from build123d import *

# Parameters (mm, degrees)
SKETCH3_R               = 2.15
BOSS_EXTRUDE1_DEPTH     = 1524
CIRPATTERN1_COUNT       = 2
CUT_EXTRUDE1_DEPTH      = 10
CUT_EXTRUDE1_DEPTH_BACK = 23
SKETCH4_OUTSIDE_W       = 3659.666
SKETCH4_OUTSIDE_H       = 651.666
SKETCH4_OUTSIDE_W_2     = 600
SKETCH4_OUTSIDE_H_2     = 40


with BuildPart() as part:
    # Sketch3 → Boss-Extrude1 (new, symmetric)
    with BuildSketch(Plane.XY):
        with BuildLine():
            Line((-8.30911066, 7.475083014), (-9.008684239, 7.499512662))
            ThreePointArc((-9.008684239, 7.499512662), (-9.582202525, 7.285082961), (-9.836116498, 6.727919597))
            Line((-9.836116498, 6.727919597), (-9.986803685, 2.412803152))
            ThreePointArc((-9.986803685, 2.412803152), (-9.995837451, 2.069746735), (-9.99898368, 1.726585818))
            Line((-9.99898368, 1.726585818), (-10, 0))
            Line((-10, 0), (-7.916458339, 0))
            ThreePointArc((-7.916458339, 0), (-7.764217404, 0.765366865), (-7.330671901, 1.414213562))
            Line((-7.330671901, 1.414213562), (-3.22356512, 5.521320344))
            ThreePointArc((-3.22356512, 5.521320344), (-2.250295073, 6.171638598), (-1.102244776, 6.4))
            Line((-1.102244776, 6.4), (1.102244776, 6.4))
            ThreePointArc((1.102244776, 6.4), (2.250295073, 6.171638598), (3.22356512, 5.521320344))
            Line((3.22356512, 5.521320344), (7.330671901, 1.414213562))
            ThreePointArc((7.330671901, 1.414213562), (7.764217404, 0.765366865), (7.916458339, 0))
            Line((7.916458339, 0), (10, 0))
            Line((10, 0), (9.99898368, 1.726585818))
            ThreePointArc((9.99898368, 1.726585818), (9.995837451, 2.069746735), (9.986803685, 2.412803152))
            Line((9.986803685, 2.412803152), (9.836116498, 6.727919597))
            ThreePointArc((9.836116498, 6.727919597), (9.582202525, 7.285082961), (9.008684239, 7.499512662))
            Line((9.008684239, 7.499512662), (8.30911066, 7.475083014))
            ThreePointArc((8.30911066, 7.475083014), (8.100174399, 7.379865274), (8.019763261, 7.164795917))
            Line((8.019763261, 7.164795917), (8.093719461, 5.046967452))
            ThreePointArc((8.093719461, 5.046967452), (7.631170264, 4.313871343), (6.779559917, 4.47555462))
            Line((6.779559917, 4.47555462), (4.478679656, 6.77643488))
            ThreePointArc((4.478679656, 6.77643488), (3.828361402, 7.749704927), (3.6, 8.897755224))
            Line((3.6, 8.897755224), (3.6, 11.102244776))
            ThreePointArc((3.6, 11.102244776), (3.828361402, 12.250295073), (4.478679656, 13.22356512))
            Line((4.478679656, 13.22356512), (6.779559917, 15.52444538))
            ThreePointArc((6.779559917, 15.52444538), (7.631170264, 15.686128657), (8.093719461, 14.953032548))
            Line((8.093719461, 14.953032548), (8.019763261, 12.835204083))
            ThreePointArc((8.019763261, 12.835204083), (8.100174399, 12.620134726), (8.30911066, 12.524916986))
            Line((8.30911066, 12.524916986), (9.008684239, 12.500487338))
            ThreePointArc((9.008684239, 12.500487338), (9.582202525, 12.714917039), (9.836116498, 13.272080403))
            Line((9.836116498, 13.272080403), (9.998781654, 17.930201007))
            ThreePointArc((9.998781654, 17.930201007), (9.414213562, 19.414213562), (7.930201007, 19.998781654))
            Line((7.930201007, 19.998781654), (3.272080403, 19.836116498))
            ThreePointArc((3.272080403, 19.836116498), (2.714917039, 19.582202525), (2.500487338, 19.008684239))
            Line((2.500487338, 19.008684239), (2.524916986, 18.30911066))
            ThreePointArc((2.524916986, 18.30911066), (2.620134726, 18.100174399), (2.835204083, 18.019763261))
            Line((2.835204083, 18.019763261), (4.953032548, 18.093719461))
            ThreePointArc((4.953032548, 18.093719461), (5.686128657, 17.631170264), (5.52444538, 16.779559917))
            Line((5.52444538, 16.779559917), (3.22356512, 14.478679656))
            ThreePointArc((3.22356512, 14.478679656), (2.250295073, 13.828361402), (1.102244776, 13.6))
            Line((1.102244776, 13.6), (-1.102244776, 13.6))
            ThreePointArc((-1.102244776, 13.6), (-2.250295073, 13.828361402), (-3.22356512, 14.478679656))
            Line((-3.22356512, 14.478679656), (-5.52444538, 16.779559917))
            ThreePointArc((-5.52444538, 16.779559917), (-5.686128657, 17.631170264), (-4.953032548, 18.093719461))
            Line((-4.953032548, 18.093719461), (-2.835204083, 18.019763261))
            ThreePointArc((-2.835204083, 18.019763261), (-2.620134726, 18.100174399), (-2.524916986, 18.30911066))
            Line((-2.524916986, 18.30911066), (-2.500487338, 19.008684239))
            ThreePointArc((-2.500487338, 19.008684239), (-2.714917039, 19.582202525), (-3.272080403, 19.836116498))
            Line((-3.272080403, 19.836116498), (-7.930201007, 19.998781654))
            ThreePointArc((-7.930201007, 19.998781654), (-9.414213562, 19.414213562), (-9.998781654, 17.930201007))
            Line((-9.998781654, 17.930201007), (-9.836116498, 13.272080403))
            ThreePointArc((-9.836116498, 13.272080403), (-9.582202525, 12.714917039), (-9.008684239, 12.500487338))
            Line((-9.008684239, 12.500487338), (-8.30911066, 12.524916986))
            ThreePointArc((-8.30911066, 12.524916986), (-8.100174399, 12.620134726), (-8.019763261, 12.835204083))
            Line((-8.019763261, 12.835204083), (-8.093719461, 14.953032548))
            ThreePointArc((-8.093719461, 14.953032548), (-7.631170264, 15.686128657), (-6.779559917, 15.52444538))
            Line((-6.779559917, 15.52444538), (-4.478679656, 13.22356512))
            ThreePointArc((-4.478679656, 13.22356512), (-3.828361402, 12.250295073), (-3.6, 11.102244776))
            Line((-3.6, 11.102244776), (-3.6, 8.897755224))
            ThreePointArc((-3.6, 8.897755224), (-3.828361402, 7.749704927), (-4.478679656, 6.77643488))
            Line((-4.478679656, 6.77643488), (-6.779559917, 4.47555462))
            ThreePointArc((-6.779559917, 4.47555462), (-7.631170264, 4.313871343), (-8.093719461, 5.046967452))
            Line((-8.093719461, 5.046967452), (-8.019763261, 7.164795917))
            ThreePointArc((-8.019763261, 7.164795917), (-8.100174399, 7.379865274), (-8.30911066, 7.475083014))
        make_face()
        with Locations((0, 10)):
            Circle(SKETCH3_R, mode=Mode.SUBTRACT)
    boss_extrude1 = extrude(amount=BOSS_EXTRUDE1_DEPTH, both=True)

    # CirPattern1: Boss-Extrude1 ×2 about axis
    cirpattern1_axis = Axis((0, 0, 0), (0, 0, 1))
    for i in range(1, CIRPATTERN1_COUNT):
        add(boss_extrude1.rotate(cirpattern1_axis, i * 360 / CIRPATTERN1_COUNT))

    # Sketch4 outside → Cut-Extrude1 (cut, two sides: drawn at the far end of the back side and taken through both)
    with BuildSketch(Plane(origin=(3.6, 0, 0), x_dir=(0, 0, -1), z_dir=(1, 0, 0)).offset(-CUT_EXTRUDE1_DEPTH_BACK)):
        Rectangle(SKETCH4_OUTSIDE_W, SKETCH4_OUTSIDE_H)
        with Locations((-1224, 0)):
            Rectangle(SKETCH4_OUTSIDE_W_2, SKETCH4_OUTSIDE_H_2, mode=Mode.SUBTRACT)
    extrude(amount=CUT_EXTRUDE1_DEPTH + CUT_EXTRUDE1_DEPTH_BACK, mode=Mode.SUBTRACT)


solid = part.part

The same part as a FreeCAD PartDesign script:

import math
import FreeCAD as App
import Part
import Sketcher
from FreeCAD import Vector
Q = App.Units.Quantity


def add_polygon(sketch, points):
    """Adds a closed chain of lines whose ends are joined by coincident constraints."""
    first, n = sketch.GeometryCount, len(points)
    for a, b in zip(points, points[1:] + points[:1]):
        sketch.addGeometry(Part.LineSegment(App.Vector(*a, 0), App.Vector(*b, 0)), False)
    for i in range(n):
        sketch.addConstraint(Sketcher.Constraint("Coincident", first + i, 2, first + (i + 1) % n, 1))

doc = App.newDocument("Part")
body = doc.addObject("PartDesign::Body", "Body")

# Sketch on XY plane
sketch1 = doc.addObject("Sketcher::SketchObject", "Sketch")
body.addObject(sketch1)
sketch1.AttachmentSupport = (doc.XY_Plane, [""])
sketch1.MapMode = "FlatFace"
sketch1.addGeometry(Part.LineSegment(Vector(-8.31, 7.48, 0), Vector(-9.01, 7.5, 0)), False)
sketch1.addGeometry(Part.ArcOfCircle(Part.Circle(Vector(-9.04, 6.7, 0), Vector(0, 0, 1), 0.8), math.radians(88), math.radians(178)), False)
sketch1.addGeometry(Part.LineSegment(Vector(-9.84, 6.73, 0), Vector(-9.99, 2.41, 0)), False)
sketch1.addGeometry(Part.ArcOfCircle(Part.Circle(Vector(10, 1.71, 0), Vector(0, 0, 1), 20), math.radians(178), math.radians(179.97)), False)
sketch1.addGeometry(Part.LineSegment(Vector(-10, 1.73, 0), Vector(-10, 0, 0)), False)
sketch1.addGeometry(Part.LineSegment(Vector(-10, 0, 0), Vector(-7.92, 0, 0)), False)
sketch1.addGeometry(Part.ArcOfCircle(Part.Circle(Vector(-5.92, 0, 0), Vector(0, 0, 1), 2), math.radians(135), math.radians(180)), False)
sketch1.addGeometry(Part.LineSegment(Vector(-7.33, 1.41, 0), Vector(-3.22, 5.52, 0)), False)
sketch1.addGeometry(Part.ArcOfCircle(Part.Circle(Vector(-1.1, 3.4, 0), Vector(0, 0, 1), 3), math.radians(90), math.radians(135)), False)
sketch1.addGeometry(Part.LineSegment(Vector(-1.1, 6.4, 0), Vector(1.1, 6.4, 0)), False)
sketch1.addGeometry(Part.ArcOfCircle(Part.Circle(Vector(1.1, 3.4, 0), Vector(0, 0, 1), 3), math.radians(45), math.radians(90)), False)
sketch1.addGeometry(Part.LineSegment(Vector(3.22, 5.52, 0), Vector(7.33, 1.41, 0)), False)
sketch1.addGeometry(Part.ArcOfCircle(Part.Circle(Vector(5.92, 0, 0), Vector(0, 0, 1), 2), math.radians(0), math.radians(45)), False)
sketch1.addGeometry(Part.LineSegment(Vector(7.92, 0, 0), Vector(10, 0, 0)), False)
sketch1.addGeometry(Part.LineSegment(Vector(10, 0, 0), Vector(10, 1.73, 0)), False)
sketch1.addGeometry(Part.ArcOfCircle(Part.Circle(Vector(-10, 1.71, 0), Vector(0, 0, 1), 20), math.radians(0.03), math.radians(2)), False)
sketch1.addGeometry(Part.LineSegment(Vector(9.99, 2.41, 0), Vector(9.84, 6.73, 0)), False)
sketch1.addGeometry(Part.ArcOfCircle(Part.Circle(Vector(9.04, 6.7, 0), Vector(0, 0, 1), 0.8), math.radians(2), math.radians(92)), False)
sketch1.addGeometry(Part.LineSegment(Vector(9.01, 7.5, 0), Vector(8.31, 7.48, 0)), False)
sketch1.addGeometry(Part.ArcOfCircle(Part.Circle(Vector(8.32, 7.18, 0), Vector(0, 0, 1), 0.3), math.radians(92), math.radians(182)), False)
sketch1.addGeometry(Part.LineSegment(Vector(8.02, 7.16, 0), Vector(8.09, 5.05, 0)), False)
sketch1.addGeometry(Part.ArcOfCircle(Part.Circle(Vector(7.32, 5.02, 0), Vector(0, 0, 1), 0.77), math.radians(-135), math.radians(2)), False)
sketch1.addGeometry(Part.LineSegment(Vector(6.78, 4.48, 0), Vector(4.48, 6.78, 0)), False)
sketch1.addGeometry(Part.ArcOfCircle(Part.Circle(Vector(6.6, 8.9, 0), Vector(0, 0, 1), 3), math.radians(180), math.radians(225)), False)
sketch1.addGeometry(Part.LineSegment(Vector(3.6, 8.9, 0), Vector(3.6, 11.1, 0)), False)
sketch1.addGeometry(Part.ArcOfCircle(Part.Circle(Vector(6.6, 11.1, 0), Vector(0, 0, 1), 3), math.radians(135), math.radians(180)), False)
sketch1.addGeometry(Part.LineSegment(Vector(4.48, 13.22, 0), Vector(6.78, 15.52, 0)), False)
sketch1.addGeometry(Part.ArcOfCircle(Part.Circle(Vector(7.32, 14.98, 0), Vector(0, 0, 1), 0.77), math.radians(-2), math.radians(135)), False)
sketch1.addGeometry(Part.LineSegment(Vector(8.09, 14.95, 0), Vector(8.02, 12.84, 0)), False)
sketch1.addGeometry(Part.ArcOfCircle(Part.Circle(Vector(8.32, 12.82, 0), Vector(0, 0, 1), 0.3), math.radians(178), math.radians(268)), False)
sketch1.addGeometry(Part.LineSegment(Vector(8.31, 12.52, 0), Vector(9.01, 12.5, 0)), False)
sketch1.addGeometry(Part.ArcOfCircle(Part.Circle(Vector(9.04, 13.3, 0), Vector(0, 0, 1), 0.8), math.radians(-92), math.radians(-2)), False)
sketch1.addGeometry(Part.LineSegment(Vector(9.84, 13.27, 0), Vector(10, 17.93, 0)), False)
sketch1.addGeometry(Part.ArcOfCircle(Part.Circle(Vector(8, 18, 0), Vector(0, 0, 1), 2), math.radians(-2), math.radians(92)), False)
sketch1.addGeometry(Part.LineSegment(Vector(7.93, 20, 0), Vector(3.27, 19.84, 0)), False)
sketch1.addGeometry(Part.ArcOfCircle(Part.Circle(Vector(3.3, 19.04, 0), Vector(0, 0, 1), 0.8), math.radians(92), math.radians(182)), False)
sketch1.addGeometry(Part.LineSegment(Vector(2.5, 19.01, 0), Vector(2.52, 18.31, 0)), False)
sketch1.addGeometry(Part.ArcOfCircle(Part.Circle(Vector(2.82, 18.32, 0), Vector(0, 0, 1), 0.3), math.radians(-178), math.radians(-88)), False)
sketch1.addGeometry(Part.LineSegment(Vector(2.84, 18.02, 0), Vector(4.95, 18.09, 0)), False)
sketch1.addGeometry(Part.ArcOfCircle(Part.Circle(Vector(4.98, 17.32, 0), Vector(0, 0, 1), 0.77), math.radians(-45), math.radians(92)), False)
sketch1.addGeometry(Part.LineSegment(Vector(5.52, 16.78, 0), Vector(3.22, 14.48, 0)), False)
sketch1.addGeometry(Part.ArcOfCircle(Part.Circle(Vector(1.1, 16.6, 0), Vector(0, 0, 1), 3), math.radians(-90), math.radians(-45)), False)
sketch1.addGeometry(Part.LineSegment(Vector(1.1, 13.6, 0), Vector(-1.1, 13.6, 0)), False)
sketch1.addGeometry(Part.ArcOfCircle(Part.Circle(Vector(-1.1, 16.6, 0), Vector(0, 0, 1), 3), math.radians(-135), math.radians(-90)), False)
sketch1.addGeometry(Part.LineSegment(Vector(-3.22, 14.48, 0), Vector(-5.52, 16.78, 0)), False)
sketch1.addGeometry(Part.ArcOfCircle(Part.Circle(Vector(-4.98, 17.32, 0), Vector(0, 0, 1), 0.77), math.radians(88), math.radians(225)), False)
sketch1.addGeometry(Part.LineSegment(Vector(-4.95, 18.09, 0), Vector(-2.84, 18.02, 0)), False)
sketch1.addGeometry(Part.ArcOfCircle(Part.Circle(Vector(-2.82, 18.32, 0), Vector(0, 0, 1), 0.3), math.radians(-92), math.radians(-2)), False)
sketch1.addGeometry(Part.LineSegment(Vector(-2.52, 18.31, 0), Vector(-2.5, 19.01, 0)), False)
sketch1.addGeometry(Part.ArcOfCircle(Part.Circle(Vector(-3.3, 19.04, 0), Vector(0, 0, 1), 0.8), math.radians(-2), math.radians(88)), False)
sketch1.addGeometry(Part.LineSegment(Vector(-3.27, 19.84, 0), Vector(-7.93, 20, 0)), False)
sketch1.addGeometry(Part.ArcOfCircle(Part.Circle(Vector(-8, 18, 0), Vector(0, 0, 1), 2), math.radians(88), math.radians(182)), False)
sketch1.addGeometry(Part.LineSegment(Vector(-10, 17.93, 0), Vector(-9.84, 13.27, 0)), False)
sketch1.addGeometry(Part.ArcOfCircle(Part.Circle(Vector(-9.04, 13.3, 0), Vector(0, 0, 1), 0.8), math.radians(-178), math.radians(-88)), False)
sketch1.addGeometry(Part.LineSegment(Vector(-9.01, 12.5, 0), Vector(-8.31, 12.52, 0)), False)
sketch1.addGeometry(Part.ArcOfCircle(Part.Circle(Vector(-8.32, 12.82, 0), Vector(0, 0, 1), 0.3), math.radians(-88), math.radians(2)), False)
sketch1.addGeometry(Part.LineSegment(Vector(-8.02, 12.84, 0), Vector(-8.09, 14.95, 0)), False)
sketch1.addGeometry(Part.ArcOfCircle(Part.Circle(Vector(-7.32, 14.98, 0), Vector(0, 0, 1), 0.77), math.radians(45), math.radians(182)), False)
sketch1.addGeometry(Part.LineSegment(Vector(-6.78, 15.52, 0), Vector(-4.48, 13.22, 0)), False)
sketch1.addGeometry(Part.ArcOfCircle(Part.Circle(Vector(-6.6, 11.1, 0), Vector(0, 0, 1), 3), math.radians(0), math.radians(45)), False)
sketch1.addGeometry(Part.LineSegment(Vector(-3.6, 11.1, 0), Vector(-3.6, 8.9, 0)), False)
sketch1.addGeometry(Part.ArcOfCircle(Part.Circle(Vector(-6.6, 8.9, 0), Vector(0, 0, 1), 3), math.radians(-45), math.radians(0)), False)
sketch1.addGeometry(Part.LineSegment(Vector(-4.48, 6.78, 0), Vector(-6.78, 4.48, 0)), False)
sketch1.addGeometry(Part.ArcOfCircle(Part.Circle(Vector(-7.32, 5.02, 0), Vector(0, 0, 1), 0.77), math.radians(178), math.radians(315)), False)
sketch1.addGeometry(Part.LineSegment(Vector(-8.09, 5.05, 0), Vector(-8.02, 7.16, 0)), False)
sketch1.addGeometry(Part.ArcOfCircle(Part.Circle(Vector(-8.32, 7.18, 0), Vector(0, 0, 1), 0.3), math.radians(-2), math.radians(88)), False)
sketch1.addGeometry(Part.Circle(Vector(0, 10, 0), Vector(0, 0, 1), 2.15), False)
sketch1.addConstraint(Sketcher.Constraint("Tangent", 0, 2, 1, 1))
sketch1.addConstraint(Sketcher.Constraint("Tangent", 1, 2, 2, 1))
sketch1.addConstraint(Sketcher.Constraint("Tangent", 2, 2, 3, 1))
sketch1.addConstraint(Sketcher.Constraint("Tangent", 3, 2, 4, 1))
sketch1.addConstraint(Sketcher.Constraint("Coincident", 4, 2, 5, 1))
sketch1.addConstraint(Sketcher.Constraint("Coincident", 5, 2, 6, 2))
sketch1.addConstraint(Sketcher.Constraint("Tangent", 6, 1, 7, 1))
sketch1.addConstraint(Sketcher.Constraint("Tangent", 7, 2, 8, 2))
sketch1.addConstraint(Sketcher.Constraint("Tangent", 8, 1, 9, 1))
sketch1.addConstraint(Sketcher.Constraint("Tangent", 9, 2, 10, 2))
sketch1.addConstraint(Sketcher.Constraint("Tangent", 10, 1, 11, 1))
sketch1.addConstraint(Sketcher.Constraint("Tangent", 11, 2, 12, 2))
sketch1.addConstraint(Sketcher.Constraint("Coincident", 12, 1, 13, 1))
sketch1.addConstraint(Sketcher.Constraint("Coincident", 13, 2, 14, 1))
sketch1.addConstraint(Sketcher.Constraint("Tangent", 14, 2, 15, 1))
sketch1.addConstraint(Sketcher.Constraint("Tangent", 15, 2, 16, 1))
sketch1.addConstraint(Sketcher.Constraint("Tangent", 16, 2, 17, 1))
sketch1.addConstraint(Sketcher.Constraint("Tangent", 17, 2, 18, 1))
sketch1.addConstraint(Sketcher.Constraint("Tangent", 18, 2, 19, 1))
sketch1.addConstraint(Sketcher.Constraint("Tangent", 19, 2, 20, 1))
sketch1.addConstraint(Sketcher.Constraint("Tangent", 20, 2, 21, 2))
sketch1.addConstraint(Sketcher.Constraint("Tangent", 21, 1, 22, 1))
sketch1.addConstraint(Sketcher.Constraint("Tangent", 22, 2, 23, 2))
sketch1.addConstraint(Sketcher.Constraint("Tangent", 23, 1, 24, 1))
sketch1.addConstraint(Sketcher.Constraint("Tangent", 24, 2, 25, 2))
sketch1.addConstraint(Sketcher.Constraint("Tangent", 25, 1, 26, 1))
sketch1.addConstraint(Sketcher.Constraint("Tangent", 26, 2, 27, 2))
sketch1.addConstraint(Sketcher.Constraint("Tangent", 27, 1, 28, 1))
sketch1.addConstraint(Sketcher.Constraint("Tangent", 28, 2, 29, 1))
sketch1.addConstraint(Sketcher.Constraint("Tangent", 29, 2, 30, 1))
sketch1.addConstraint(Sketcher.Constraint("Tangent", 30, 2, 31, 1))
sketch1.addConstraint(Sketcher.Constraint("Tangent", 31, 2, 32, 1))
sketch1.addConstraint(Sketcher.Constraint("Tangent", 32, 2, 33, 1))
sketch1.addConstraint(Sketcher.Constraint("Tangent", 33, 2, 34, 1))
sketch1.addConstraint(Sketcher.Constraint("Tangent", 34, 2, 35, 1))
sketch1.addConstraint(Sketcher.Constraint("Tangent", 35, 2, 36, 1))
sketch1.addConstraint(Sketcher.Constraint("Tangent", 36, 2, 37, 1))
sketch1.addConstraint(Sketcher.Constraint("Tangent", 37, 2, 38, 1))
sketch1.addConstraint(Sketcher.Constraint("Tangent", 38, 2, 39, 2))
sketch1.addConstraint(Sketcher.Constraint("Tangent", 39, 1, 40, 1))
sketch1.addConstraint(Sketcher.Constraint("Tangent", 40, 2, 41, 2))
sketch1.addConstraint(Sketcher.Constraint("Tangent", 41, 1, 42, 1))
sketch1.addConstraint(Sketcher.Constraint("Tangent", 42, 2, 43, 2))
sketch1.addConstraint(Sketcher.Constraint("Tangent", 43, 1, 44, 1))
sketch1.addConstraint(Sketcher.Constraint("Tangent", 44, 2, 45, 2))
sketch1.addConstraint(Sketcher.Constraint("Tangent", 45, 1, 46, 1))
sketch1.addConstraint(Sketcher.Constraint("Tangent", 46, 2, 47, 1))
sketch1.addConstraint(Sketcher.Constraint("Tangent", 47, 2, 48, 1))
sketch1.addConstraint(Sketcher.Constraint("Tangent", 48, 2, 49, 1))
sketch1.addConstraint(Sketcher.Constraint("Tangent", 49, 2, 50, 1))
sketch1.addConstraint(Sketcher.Constraint("Tangent", 50, 2, 51, 1))
sketch1.addConstraint(Sketcher.Constraint("Tangent", 51, 2, 52, 1))
sketch1.addConstraint(Sketcher.Constraint("Tangent", 52, 2, 53, 1))
sketch1.addConstraint(Sketcher.Constraint("Tangent", 53, 2, 54, 1))
sketch1.addConstraint(Sketcher.Constraint("Tangent", 54, 2, 55, 1))
sketch1.addConstraint(Sketcher.Constraint("Tangent", 55, 2, 56, 1))
sketch1.addConstraint(Sketcher.Constraint("Tangent", 56, 2, 57, 2))
sketch1.addConstraint(Sketcher.Constraint("Tangent", 57, 1, 58, 1))
sketch1.addConstraint(Sketcher.Constraint("Tangent", 58, 2, 59, 2))
sketch1.addConstraint(Sketcher.Constraint("Tangent", 59, 1, 60, 1))
sketch1.addConstraint(Sketcher.Constraint("Tangent", 60, 2, 61, 2))
sketch1.addConstraint(Sketcher.Constraint("Tangent", 61, 1, 62, 1))
sketch1.addConstraint(Sketcher.Constraint("Tangent", 62, 2, 63, 2))
sketch1.addConstraint(Sketcher.Constraint("Tangent", 63, 1, 64, 1))
sketch1.addConstraint(Sketcher.Constraint("Tangent", 64, 2, 65, 1))
sketch1.addConstraint(Sketcher.Constraint("Tangent", 65, 2, 0, 1))
sketch1.addConstraint(Sketcher.Constraint("Horizontal", 5))
sketch1.addConstraint(Sketcher.Constraint("Horizontal", 9))
sketch1.addConstraint(Sketcher.Constraint("Horizontal", 13))
sketch1.addConstraint(Sketcher.Constraint("Vertical", 24))
sketch1.addConstraint(Sketcher.Constraint("Horizontal", 42))
sketch1.addConstraint(Sketcher.Constraint("Vertical", 60))
sketch1.addConstraint(Sketcher.Constraint("Equal", 8, 10))
sketch1.addConstraint(Sketcher.Constraint("Equal", 6, 12))
sketch1.addConstraint(Sketcher.Constraint("Equal", 3, 15))
sketch1.addConstraint(Sketcher.Constraint("Equal", 1, 17))
sketch1.addConstraint(Sketcher.Constraint("Equal", 10, 23))
sketch1.addConstraint(Sketcher.Constraint("Equal", 23, 25))
sketch1.addConstraint(Sketcher.Constraint("Equal", 21, 27))
sketch1.addConstraint(Sketcher.Constraint("Equal", 19, 29))
sketch1.addConstraint(Sketcher.Constraint("Equal", 17, 31))
sketch1.addConstraint(Sketcher.Constraint("Equal", 12, 33))
sketch1.addConstraint(Sketcher.Constraint("Equal", 31, 35))
sketch1.addConstraint(Sketcher.Constraint("Equal", 29, 37))
sketch1.addConstraint(Sketcher.Constraint("Equal", 27, 39))
sketch1.addConstraint(Sketcher.Constraint("Equal", 25, 41))
sketch1.addConstraint(Sketcher.Constraint("Equal", 41, 43))
sketch1.addConstraint(Sketcher.Constraint("Equal", 39, 45))
sketch1.addConstraint(Sketcher.Constraint("Equal", 37, 47))
sketch1.addConstraint(Sketcher.Constraint("Equal", 35, 49))
sketch1.addConstraint(Sketcher.Constraint("Equal", 33, 51))
sketch1.addConstraint(Sketcher.Constraint("Equal", 49, 53))
sketch1.addConstraint(Sketcher.Constraint("Equal", 47, 55))
sketch1.addConstraint(Sketcher.Constraint("Equal", 45, 57))
sketch1.addConstraint(Sketcher.Constraint("Equal", 43, 59))
sketch1.addConstraint(Sketcher.Constraint("Equal", 59, 61))
sketch1.addConstraint(Sketcher.Constraint("Equal", 57, 63))
sketch1.addConstraint(Sketcher.Constraint("Equal", 55, 65))
sketch1.addConstraint(Sketcher.Constraint("Symmetric", 6, 3, 12, 3, -1, 1))
sketch1.addConstraint(Sketcher.Constraint("Symmetric", 4, 2, 13, 2, -1, 1))
sketch1.addConstraint(Sketcher.Constraint("Symmetric", 3, 3, 15, 3, -2))
sketch1.addConstraint(Sketcher.Constraint("Symmetric", 1, 3, 17, 3, -2))
sketch1.addConstraint(Sketcher.Constraint("Symmetric", 39, 3, 45, 3, -2))
sketch1.addConstraint(Sketcher.Constraint("Symmetric", 37, 3, 47, 3, -2))
sketch1.addConstraint(Sketcher.Constraint("Symmetric", 35, 3, 49, 3, -2))
sketch1.addConstraint(Sketcher.Constraint("Symmetric", 33, 3, 51, 3, -2))
sketch1.addConstraint(Sketcher.Constraint("Symmetric", 31, 3, 53, 3, -2))
sketch1.addConstraint(Sketcher.Constraint("Symmetric", 29, 3, 55, 3, -2))
sketch1.addConstraint(Sketcher.Constraint("Symmetric", 27, 3, 57, 3, -2))
sketch1.addConstraint(Sketcher.Constraint("Symmetric", 25, 3, 59, 3, -2))
sketch1.addConstraint(Sketcher.Constraint("Symmetric", 21, 3, 63, 3, -2))
sketch1.addConstraint(Sketcher.Constraint("Symmetric", 19, 3, 65, 3, -2))
sketch1.addConstraint(Sketcher.Constraint("Symmetric", 7, 2, 10, 1, -2))
sketch1.addConstraint(Sketcher.Constraint("PointOnObject", 66, 3, -2))
sketch1.addConstraint(Sketcher.Constraint("PointOnObject", 4, 2, -1))
sketch1.addConstraint(Sketcher.Constraint("Perpendicular", 0, 2))
sketch1.addConstraint(Sketcher.Constraint("Perpendicular", 7, 11))
sketch1.addConstraint(Sketcher.Constraint("Perpendicular", 18, 20))
sketch1.addConstraint(Sketcher.Constraint("Parallel", 11, 22))
sketch1.addConstraint(Sketcher.Constraint("Perpendicular", 22, 26))
sketch1.addConstraint(Sketcher.Constraint("Parallel", 2, 28))
sketch1.addConstraint(Sketcher.Constraint("Perpendicular", 28, 30))
sketch1.addConstraint(Sketcher.Constraint("Perpendicular", 30, 32))
sketch1.addConstraint(Sketcher.Constraint("Perpendicular", 20, 34))
sketch1.addConstraint(Sketcher.Constraint("Perpendicular", 34, 36))
sketch1.addConstraint(Sketcher.Constraint("Perpendicular", 36, 38))
sketch1.addConstraint(Sketcher.Constraint("Parallel", 26, 40))
sketch1.addConstraint(Sketcher.Constraint("Perpendicular", 40, 44))
sketch1.addConstraint(Sketcher.Constraint("Perpendicular", 58, 62))
sketch1.addConstraint(Sketcher.Constraint("Vertical", 21, 3, 27, 3))
sketch1.addConstraint(Sketcher.Constraint("Vertical", 19, 3, 29, 3))
sketch1.addConstraint(Sketcher.Constraint("Vertical", 17, 3, 31, 3))
sketch1.addConstraint(Sketcher.Constraint("Vertical", 10, 3, 41, 3))
sketch1.addConstraint(Sketcher.Constraint("Equal", 42, 24))
sketch1.addConstraint(Sketcher.Constraint("Equal", 32, 34))
sketch1.addConstraint(Sketcher.Constraint("Equal", 30, 36))
sketch1.addConstraint(Sketcher.Constraint("Equal", 28, 38))
sketch1.addConstraint(Sketcher.Constraint("Equal", 26, 40))
sketch1.addConstraint(Sketcher.Constraint("Radius", 6, Q("2 mm")))
sketch1.addConstraint(Sketcher.Constraint("Radius", 8, Q("3 mm")))
sketch1.addConstraint(Sketcher.Constraint("Diameter", 66, Q("4.3 mm")))
sketch1.addConstraint(Sketcher.Constraint("Radius", 1, Q("0.8 mm")))
sketch1.addConstraint(Sketcher.Constraint("Radius", 19, Q("0.3 mm")))
sketch1.addConstraint(Sketcher.Constraint("Angle", 0, Q("178 deg")))
sketch1.addConstraint(Sketcher.Constraint("DistanceX", -1, 1, 33, 3, Q("8 mm")))
sketch1.addConstraint(Sketcher.Constraint("DistanceY", -1, 1, 33, 3, Q("18 mm")))
sketch1.addConstraint(Sketcher.Constraint("DistanceY", -1, 1, 66, 3, Q("10 mm")))
sketch1.addConstraint(Sketcher.Constraint("DistanceX", 4, 2, -1, 1, Q("10 mm")))
sketch1.addConstraint(Sketcher.Constraint("Distance", 0, Q("0.7 mm")))
sketch1.addConstraint(Sketcher.Constraint("DistanceY", -1, 1, 1, 3, Q("6.7 mm")))
sketch1.addConstraint(Sketcher.Constraint("DistanceY", -1, 1, 8, 3, Q("3.4 mm")))
sketch1.addConstraint(Sketcher.Constraint("DistanceX", -1, 1, 23, 3, Q("6.6 mm")))
sketch1.addConstraint(Sketcher.Constraint("Radius", 21, Q("0.770092 mm")))
sketch1.addConstraint(Sketcher.Constraint("Radius", 3, Q("20.000005 mm")))
sketch1.addConstraint(Sketcher.Constraint("DistanceX", 5, 1, 5, 2, Q("2.083542 mm")))
sketch1.addConstraint(Sketcher.Constraint("Distance", 2, Q("4.317747 mm")))
pad1 = doc.addObject("PartDesign::Pad", "Pad")
body.addObject(pad1)
pad1.Profile = sketch1
pad1.Length = 3048
pad1.Midplane = True
doc.recompute()

polarpattern = doc.addObject("PartDesign::PolarPattern", "PolarPattern")
body.addObject(polarpattern)
polarpattern.Originals = [pad1]
polarpattern.Axis = (doc.Z_Axis, [""])
polarpattern.Angle = 360
polarpattern.Occurrences = 2
body.Tip = polarpattern

# Sketch on YZ plane
sketch2 = doc.addObject("Sketcher::SketchObject", "Sketch001")
body.addObject(sketch2)
sketch2.AttachmentSupport = (doc.YZ_Plane, [""])
sketch2.MapMode = "FlatFace"
sketch2.AttachmentOffset = App.Placement(Vector(0, 0, 3.6), App.Rotation())
add_polygon(sketch2, [(326, 1830), (-326, 1830), (-326, -1830), (326, -1830)])  # lines 0-3
add_polygon(sketch2, [(-20, 924), (-20, 1524), (20, 1524), (20, 924)])  # lines 4-7
sketch2.addConstraint(Sketcher.Constraint("Horizontal", 0))
sketch2.addConstraint(Sketcher.Constraint("Vertical", 1))
sketch2.addConstraint(Sketcher.Constraint("Horizontal", 2))
sketch2.addConstraint(Sketcher.Constraint("Vertical", 3))
sketch2.addConstraint(Sketcher.Constraint("Vertical", 4))
sketch2.addConstraint(Sketcher.Constraint("Horizontal", 5))
sketch2.addConstraint(Sketcher.Constraint("Vertical", 6))
sketch2.addConstraint(Sketcher.Constraint("Horizontal", 7))
sketch2.addConstraint(Sketcher.Constraint("Symmetric", 0, 2, 2, 2, -1, 1))
sketch2.addConstraint(Sketcher.Constraint("DistanceX", 5, 1, 5, 2, Q("40 mm")))
sketch2.addConstraint(Sketcher.Constraint("DistanceY", 4, 1, 4, 2, Q("600 mm")))
sketch2.addConstraint(Sketcher.Constraint("DistanceX", 4, 2, -1, 1, Q("20 mm")))
sketch2.addConstraint(Sketcher.Constraint("DistanceY", -1, 1, 4, 2, Q("1524 mm")))
sketch2.addConstraint(Sketcher.Constraint("DistanceX", 0, 2, 0, 1, Q("651.666 mm")))
sketch2.addConstraint(Sketcher.Constraint("DistanceY", 1, 2, 1, 1, Q("3659.666 mm")))
pocket1 = doc.addObject("PartDesign::Pocket", "Pocket")
body.addObject(pocket1)
pocket1.Profile = sketch2
pocket1.Type = "ThroughAll"
pocket1.Midplane = True

doc.recompute()
